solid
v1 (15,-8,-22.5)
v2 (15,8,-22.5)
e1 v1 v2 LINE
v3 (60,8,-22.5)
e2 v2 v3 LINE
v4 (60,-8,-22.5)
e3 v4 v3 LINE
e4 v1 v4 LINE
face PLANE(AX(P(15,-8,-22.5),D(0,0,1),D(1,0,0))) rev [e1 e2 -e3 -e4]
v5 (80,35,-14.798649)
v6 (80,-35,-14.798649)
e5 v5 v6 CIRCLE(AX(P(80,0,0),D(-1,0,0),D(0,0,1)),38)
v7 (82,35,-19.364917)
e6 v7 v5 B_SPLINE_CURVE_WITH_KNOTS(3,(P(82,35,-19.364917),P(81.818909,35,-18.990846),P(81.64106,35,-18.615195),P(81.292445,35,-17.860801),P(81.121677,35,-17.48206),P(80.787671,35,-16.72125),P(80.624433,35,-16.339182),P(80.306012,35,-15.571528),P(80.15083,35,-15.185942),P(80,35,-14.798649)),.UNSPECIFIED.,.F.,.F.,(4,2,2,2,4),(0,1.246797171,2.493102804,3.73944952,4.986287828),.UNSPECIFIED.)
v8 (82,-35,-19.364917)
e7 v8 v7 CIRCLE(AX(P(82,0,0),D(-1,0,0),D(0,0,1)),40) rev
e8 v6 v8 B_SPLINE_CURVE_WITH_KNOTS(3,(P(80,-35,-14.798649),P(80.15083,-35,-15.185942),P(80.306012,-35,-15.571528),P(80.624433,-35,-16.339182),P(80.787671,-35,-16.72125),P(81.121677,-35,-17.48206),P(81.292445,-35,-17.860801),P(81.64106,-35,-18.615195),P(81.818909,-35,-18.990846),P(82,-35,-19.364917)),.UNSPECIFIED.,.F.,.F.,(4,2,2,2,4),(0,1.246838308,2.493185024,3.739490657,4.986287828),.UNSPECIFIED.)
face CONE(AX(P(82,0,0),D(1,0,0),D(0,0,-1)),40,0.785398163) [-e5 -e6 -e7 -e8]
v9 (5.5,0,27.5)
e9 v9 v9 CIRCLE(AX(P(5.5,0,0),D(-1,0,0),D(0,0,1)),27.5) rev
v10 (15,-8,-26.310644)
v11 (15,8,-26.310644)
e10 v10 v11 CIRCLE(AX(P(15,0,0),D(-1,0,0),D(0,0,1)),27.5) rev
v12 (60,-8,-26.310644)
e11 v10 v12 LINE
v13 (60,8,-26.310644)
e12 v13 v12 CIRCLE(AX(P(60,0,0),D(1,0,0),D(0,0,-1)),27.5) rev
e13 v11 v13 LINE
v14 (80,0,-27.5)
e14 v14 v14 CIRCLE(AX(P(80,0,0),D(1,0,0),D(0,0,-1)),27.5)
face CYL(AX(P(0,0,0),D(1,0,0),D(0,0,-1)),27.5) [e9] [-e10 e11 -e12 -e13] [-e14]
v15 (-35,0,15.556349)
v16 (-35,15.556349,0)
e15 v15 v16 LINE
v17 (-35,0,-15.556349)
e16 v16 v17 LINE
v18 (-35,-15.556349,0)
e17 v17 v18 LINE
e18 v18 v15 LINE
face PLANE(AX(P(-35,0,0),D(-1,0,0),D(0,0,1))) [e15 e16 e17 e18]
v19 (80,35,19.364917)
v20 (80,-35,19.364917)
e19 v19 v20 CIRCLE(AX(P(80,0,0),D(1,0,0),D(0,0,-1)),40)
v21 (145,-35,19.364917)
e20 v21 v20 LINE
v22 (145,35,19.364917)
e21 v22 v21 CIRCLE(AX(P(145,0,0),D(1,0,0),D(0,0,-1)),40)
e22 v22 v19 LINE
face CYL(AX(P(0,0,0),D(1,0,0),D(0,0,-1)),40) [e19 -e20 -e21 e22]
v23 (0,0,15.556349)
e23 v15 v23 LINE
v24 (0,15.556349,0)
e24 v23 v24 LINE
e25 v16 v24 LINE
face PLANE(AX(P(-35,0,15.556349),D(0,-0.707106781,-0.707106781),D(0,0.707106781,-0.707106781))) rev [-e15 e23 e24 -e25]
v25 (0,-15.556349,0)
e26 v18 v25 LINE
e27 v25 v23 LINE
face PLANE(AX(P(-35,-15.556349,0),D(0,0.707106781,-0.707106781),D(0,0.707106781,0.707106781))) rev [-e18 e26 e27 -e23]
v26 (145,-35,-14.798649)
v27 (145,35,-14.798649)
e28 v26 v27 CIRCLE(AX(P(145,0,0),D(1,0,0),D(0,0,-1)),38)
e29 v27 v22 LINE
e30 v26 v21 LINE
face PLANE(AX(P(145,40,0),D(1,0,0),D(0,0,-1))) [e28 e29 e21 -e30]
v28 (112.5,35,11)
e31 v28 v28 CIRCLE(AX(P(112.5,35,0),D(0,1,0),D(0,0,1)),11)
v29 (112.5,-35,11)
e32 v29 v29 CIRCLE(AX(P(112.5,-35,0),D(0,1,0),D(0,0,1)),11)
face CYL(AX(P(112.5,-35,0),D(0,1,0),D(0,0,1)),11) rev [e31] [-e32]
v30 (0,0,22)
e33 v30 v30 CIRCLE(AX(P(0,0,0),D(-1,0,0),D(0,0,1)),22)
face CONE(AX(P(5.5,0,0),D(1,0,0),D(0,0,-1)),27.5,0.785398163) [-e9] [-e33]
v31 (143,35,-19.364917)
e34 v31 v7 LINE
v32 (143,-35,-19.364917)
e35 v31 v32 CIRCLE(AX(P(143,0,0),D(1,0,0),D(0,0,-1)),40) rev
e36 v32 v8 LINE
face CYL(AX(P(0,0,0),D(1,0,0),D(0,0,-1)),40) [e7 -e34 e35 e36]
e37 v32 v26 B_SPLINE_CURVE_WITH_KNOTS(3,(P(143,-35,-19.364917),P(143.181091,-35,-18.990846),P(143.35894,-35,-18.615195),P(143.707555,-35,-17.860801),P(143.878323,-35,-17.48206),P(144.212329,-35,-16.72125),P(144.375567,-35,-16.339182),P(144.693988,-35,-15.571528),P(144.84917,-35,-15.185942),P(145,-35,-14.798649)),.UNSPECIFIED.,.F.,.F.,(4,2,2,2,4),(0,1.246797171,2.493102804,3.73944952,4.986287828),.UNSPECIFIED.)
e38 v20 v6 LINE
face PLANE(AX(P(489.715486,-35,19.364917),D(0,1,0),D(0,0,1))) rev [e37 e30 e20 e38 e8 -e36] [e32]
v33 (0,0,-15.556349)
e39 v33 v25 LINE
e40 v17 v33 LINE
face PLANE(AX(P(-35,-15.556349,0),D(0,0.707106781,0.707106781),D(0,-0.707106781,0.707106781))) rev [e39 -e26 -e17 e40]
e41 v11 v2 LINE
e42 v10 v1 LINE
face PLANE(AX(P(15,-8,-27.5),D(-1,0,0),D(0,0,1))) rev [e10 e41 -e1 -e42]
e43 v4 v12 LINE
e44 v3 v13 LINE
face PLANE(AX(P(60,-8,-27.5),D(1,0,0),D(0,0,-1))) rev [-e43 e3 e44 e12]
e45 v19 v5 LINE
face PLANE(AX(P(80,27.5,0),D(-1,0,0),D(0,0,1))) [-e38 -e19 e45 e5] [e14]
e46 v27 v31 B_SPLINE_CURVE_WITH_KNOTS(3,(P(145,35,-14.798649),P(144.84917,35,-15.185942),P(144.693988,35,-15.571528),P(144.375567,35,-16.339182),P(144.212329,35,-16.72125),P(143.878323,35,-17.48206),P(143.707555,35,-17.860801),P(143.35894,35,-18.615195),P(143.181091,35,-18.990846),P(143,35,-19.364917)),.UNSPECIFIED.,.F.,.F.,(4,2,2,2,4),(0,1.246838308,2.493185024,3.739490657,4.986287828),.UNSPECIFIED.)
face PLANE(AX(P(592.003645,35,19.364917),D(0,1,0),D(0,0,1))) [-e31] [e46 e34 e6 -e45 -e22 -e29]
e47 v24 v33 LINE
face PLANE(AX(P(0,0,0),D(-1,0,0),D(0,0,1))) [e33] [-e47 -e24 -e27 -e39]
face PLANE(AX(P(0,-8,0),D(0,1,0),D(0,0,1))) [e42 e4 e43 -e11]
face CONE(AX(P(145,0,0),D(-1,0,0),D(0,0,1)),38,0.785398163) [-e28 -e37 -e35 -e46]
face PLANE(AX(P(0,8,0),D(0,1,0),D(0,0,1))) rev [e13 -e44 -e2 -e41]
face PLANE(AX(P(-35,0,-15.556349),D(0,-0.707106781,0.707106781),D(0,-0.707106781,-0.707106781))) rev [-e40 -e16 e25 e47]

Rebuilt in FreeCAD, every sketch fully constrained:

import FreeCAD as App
import Part
import Sketcher
from FreeCAD import Vector


def edges_at(feature, points):
    """Names of the edges that pass closest to the given points."""
    edges = feature.Shape.Edges
    near = lambda p: min(range(len(edges)), key=lambda i: edges[i].distToShape(Part.Vertex(*p))[0])
    return sorted({f"Edge{near(p) + 1}" for p in points})

doc = App.newDocument("Part")
body = doc.addObject("PartDesign::Body", "Body")

# Sketch on XY plane
sketch1 = body.newObject("Sketcher::SketchObject", "Sketch")
sketch1.AttachmentSupport = (doc.getObject("XY_Plane"), [""])
sketch1.MapMode = "FlatFace"
sketch1.addGeometry(Part.LineSegment(Vector(0, 28, 0), Vector(0, 0, 0)), False)
sketch1.addGeometry(Part.LineSegment(Vector(0, 0, 0), Vector(145, 0, 0)), False)
sketch1.addGeometry(Part.LineSegment(Vector(145, 0, 0), Vector(145, 40, 0)), False)
sketch1.addGeometry(Part.LineSegment(Vector(145, 40, 0), Vector(80, 40, 0)), False)
sketch1.addGeometry(Part.LineSegment(Vector(80, 40, 0), Vector(80, 28, 0)), False)
sketch1.addGeometry(Part.LineSegment(Vector(80, 28, 0), Vector(0, 28, 0)), False)
sketch1.addConstraint(Sketcher.Constraint("Coincident", 0, 2, 1, 1))
sketch1.addConstraint(Sketcher.Constraint("Coincident", 1, 2, 2, 1))
sketch1.addConstraint(Sketcher.Constraint("Coincident", 2, 2, 3, 1))
sketch1.addConstraint(Sketcher.Constraint("Coincident", 3, 2, 4, 1))
sketch1.addConstraint(Sketcher.Constraint("Coincident", 4, 2, 5, 1))
sketch1.addConstraint(Sketcher.Constraint("Coincident", 5, 2, 0, 1))
sketch1.addConstraint(Sketcher.Constraint("Vertical", 0))
sketch1.addConstraint(Sketcher.Constraint("Horizontal", 1))
sketch1.addConstraint(Sketcher.Constraint("Vertical", 2))
sketch1.addConstraint(Sketcher.Constraint("Horizontal", 3))
sketch1.addConstraint(Sketcher.Constraint("Vertical", 4))
sketch1.addConstraint(Sketcher.Constraint("Horizontal", 5))
sketch1.addConstraint(Sketcher.Constraint("Coincident", 0, 2, -1, 1))
sketch1.addConstraint(Sketcher.Constraint("DistanceX", 1, 1, 1, 2, 145.0))
sketch1.addConstraint(Sketcher.Constraint("DistanceX", 3, 2, 3, 1, 65.0))
sketch1.addConstraint(Sketcher.Constraint("DistanceY", 2, 1, 2, 2, 40.0))
sketch1.addConstraint(Sketcher.Constraint("DistanceY", 0, 2, 0, 1, 27.5))
revolution = body.newObject("PartDesign::Revolution", "Revolution")
revolution.Profile = sketch1
revolution.ReferenceAxis = (sketch1, ["H_Axis"])
revolution.Angle = 360

# Sketch on YZ plane
sketch2 = body.newObject("Sketcher::SketchObject", "Sketch001")
sketch2.AttachmentSupport = (doc.getObject("YZ_Plane"), [""])
sketch2.MapMode = "FlatFace"
sketch2.addGeometry(Part.LineSegment(Vector(0, -16, 0), Vector(-16, 0, 0)), False)
sketch2.addGeometry(Part.LineSegment(Vector(-16, 0, 0), Vector(0, 16, 0)), False)
sketch2.addGeometry(Part.LineSegment(Vector(0, 16, 0), Vector(16, 0, 0)), False)
sketch2.addGeometry(Part.LineSegment(Vector(16, 0, 0), Vector(0, -16, 0)), False)
sketch2.addConstraint(Sketcher.Constraint("Coincident", 0, 2, 1, 1))
sketch2.addConstraint(Sketcher.Constraint("Coincident", 1, 2, 2, 1))
sketch2.addConstraint(Sketcher.Constraint("Coincident", 2, 2, 3, 1))
sketch2.addConstraint(Sketcher.Constraint("Coincident", 3, 2, 0, 1))
sketch2.addConstraint(Sketcher.Constraint("Symmetric", 0, 2, 2, 2, -1, 1))
sketch2.addConstraint(Sketcher.Constraint("Symmetric", 1, 2, 3, 2, -1, 1))
sketch2.addConstraint(Sketcher.Constraint("PointOnObject", 0, 2, -1))
sketch2.addConstraint(Sketcher.Constraint("PointOnObject", 1, 2, -2))
sketch2.addConstraint(Sketcher.Constraint("Perpendicular", 0, 1))
sketch2.addConstraint(Sketcher.Constraint("Distance", 0, 22.0))
pad1 = body.newObject("PartDesign::Pad", "Pad")
pad1.Profile = sketch2
pad1.Length = 35
pad1.Reversed = True

# Sketch on XZ plane
sketch3 = body.newObject("Sketcher::SketchObject", "Sketch002")
sketch3.AttachmentSupport = (doc.getObject("XZ_Plane"), [""])
sketch3.MapMode = "FlatFace"
sketch3.addGeometry(Part.LineSegment(Vector(15, -28, 0), Vector(15, -22, 0)), False)
sketch3.addGeometry(Part.LineSegment(Vector(15, -22, 0), Vector(60, -22, 0)), False)
sketch3.addGeometry(Part.LineSegment(Vector(60, -22, 0), Vector(60, -28, 0)), False)
sketch3.addGeometry(Part.LineSegment(Vector(60, -28, 0), Vector(15, -28, 0)), False)
sketch3.addConstraint(Sketcher.Constraint("Coincident", 0, 2, 1, 1))
sketch3.addConstraint(Sketcher.Constraint("Coincident", 1, 2, 2, 1))
sketch3.addConstraint(Sketcher.Constraint("Coincident", 2, 2, 3, 1))
sketch3.addConstraint(Sketcher.Constraint("Coincident", 3, 2, 0, 1))
sketch3.addConstraint(Sketcher.Constraint("Vertical", 0))
sketch3.addConstraint(Sketcher.Constraint("Horizontal", 1))
sketch3.addConstraint(Sketcher.Constraint("Vertical", 2))
sketch3.addConstraint(Sketcher.Constraint("Horizontal", 3))
sketch3.addConstraint(Sketcher.Constraint("DistanceX", 1, 1, 1, 2, 45.0))
sketch3.addConstraint(Sketcher.Constraint("DistanceY", 0, 1, 0, 2, 5.0))
sketch3.addConstraint(Sketcher.Constraint("DistanceX", -1, 1, 0, 2, 15.0))
sketch3.addConstraint(Sketcher.Constraint("DistanceY", 0, 2, -1, 1, 22.5))
pocket1 = body.newObject("PartDesign::Pocket", "Pocket")
pocket1.Profile = sketch3
pocket1.Length = 16
pocket1.Midplane = True

# Sketch on YZ plane
sketch4 = body.newObject("Sketcher::SketchObject", "Sketch003")
sketch4.AttachmentSupport = (doc.getObject("YZ_Plane"), [""])
sketch4.MapMode = "FlatFace"
sketch4.AttachmentOffset = App.Placement(Vector(0, 0, 145), App.Rotation())
sketch4.addGeometry(Part.LineSegment(Vector(35, 221, 0), Vector(35, -221, 0)), False)
sketch4.addGeometry(Part.LineSegment(Vector(35, -221, 0), Vector(438, -221, 0)), False)
sketch4.addGeometry(Part.LineSegment(Vector(438, -221, 0), Vector(438, 221, 0)), False)
sketch4.addGeometry(Part.LineSegment(Vector(438, 221, 0), Vector(35, 221, 0)), False)
sketch4.addConstraint(Sketcher.Constraint("Coincident", 0, 2, 1, 1))
sketch4.addConstraint(Sketcher.Constraint("Coincident", 1, 2, 2, 1))
sketch4.addConstraint(Sketcher.Constraint("Coincident", 2, 2, 3, 1))
sketch4.addConstraint(Sketcher.Constraint("Coincident", 3, 2, 0, 1))
sketch4.addConstraint(Sketcher.Constraint("Vertical", 0))
sketch4.addConstraint(Sketcher.Constraint("Horizontal", 1))
sketch4.addConstraint(Sketcher.Constraint("Vertical", 2))
sketch4.addConstraint(Sketcher.Constraint("Horizontal", 3))
sketch4.addConstraint(Sketcher.Constraint("DistanceX", -1, 1, 0, 2, 35.0))
sketch4.addConstraint(Sketcher.Constraint("DistanceX", 1, 1, 1, 2, 402.605663))
sketch4.addConstraint(Sketcher.Constraint("DistanceY", 0, 2, 0, 1, 441.335497))
sketch4.addConstraint(Sketcher.Constraint("DistanceY", 0, 2, -1, 1, 220.667748))
pocket2 = body.newObject("PartDesign::Pocket", "Pocket001")
pocket2.Profile = sketch4
pocket2.Length = 379.359245
pocket2.Midplane = True
doc.recompute()

mirrored = body.newObject("PartDesign::Mirrored", "Mirrored")
mirrored.Originals = [pocket2]
mirrored.MirrorPlane = (doc.getObject("XZ_Plane"), [""])
body.Tip = mirrored

# Sketch on XZ plane
sketch5 = body.newObject("Sketcher::SketchObject", "Sketch004")
sketch5.AttachmentSupport = (doc.getObject("XZ_Plane"), [""])
sketch5.MapMode = "FlatFace"
sketch5.AttachmentOffset = App.Placement(Vector(0, 0, -35), App.Rotation())
sketch5.addGeometry(Part.Circle(Vector(112, 0, 0), Vector(0, 0, 1), 11), False)
sketch5.addConstraint(Sketcher.Constraint("PointOnObject", 0, 3, -1))
sketch5.addConstraint(Sketcher.Constraint("Diameter", 0, 22.0))
sketch5.addConstraint(Sketcher.Constraint("DistanceX", -1, 1, 0, 3, 112.5))
pocket3 = body.newObject("PartDesign::Pocket", "Pocket002")
pocket3.Profile = sketch5
pocket3.Type = "ThroughAll"
pocket3.Midplane = True
doc.recompute()

chamfer = body.newObject("PartDesign::Chamfer", "Chamfer")
chamfer.Base = (pocket3, edges_at(pocket3, [(145, 0, -40), (80, 0, -40)]))
chamfer.Size = 2
doc.recompute()

chamfer2 = body.newObject("PartDesign::Chamfer", "Chamfer001")
chamfer2.Base = (chamfer, edges_at(chamfer, [(0, 0, 27.5)]))
chamfer2.Size = 5.5

doc.recompute()
